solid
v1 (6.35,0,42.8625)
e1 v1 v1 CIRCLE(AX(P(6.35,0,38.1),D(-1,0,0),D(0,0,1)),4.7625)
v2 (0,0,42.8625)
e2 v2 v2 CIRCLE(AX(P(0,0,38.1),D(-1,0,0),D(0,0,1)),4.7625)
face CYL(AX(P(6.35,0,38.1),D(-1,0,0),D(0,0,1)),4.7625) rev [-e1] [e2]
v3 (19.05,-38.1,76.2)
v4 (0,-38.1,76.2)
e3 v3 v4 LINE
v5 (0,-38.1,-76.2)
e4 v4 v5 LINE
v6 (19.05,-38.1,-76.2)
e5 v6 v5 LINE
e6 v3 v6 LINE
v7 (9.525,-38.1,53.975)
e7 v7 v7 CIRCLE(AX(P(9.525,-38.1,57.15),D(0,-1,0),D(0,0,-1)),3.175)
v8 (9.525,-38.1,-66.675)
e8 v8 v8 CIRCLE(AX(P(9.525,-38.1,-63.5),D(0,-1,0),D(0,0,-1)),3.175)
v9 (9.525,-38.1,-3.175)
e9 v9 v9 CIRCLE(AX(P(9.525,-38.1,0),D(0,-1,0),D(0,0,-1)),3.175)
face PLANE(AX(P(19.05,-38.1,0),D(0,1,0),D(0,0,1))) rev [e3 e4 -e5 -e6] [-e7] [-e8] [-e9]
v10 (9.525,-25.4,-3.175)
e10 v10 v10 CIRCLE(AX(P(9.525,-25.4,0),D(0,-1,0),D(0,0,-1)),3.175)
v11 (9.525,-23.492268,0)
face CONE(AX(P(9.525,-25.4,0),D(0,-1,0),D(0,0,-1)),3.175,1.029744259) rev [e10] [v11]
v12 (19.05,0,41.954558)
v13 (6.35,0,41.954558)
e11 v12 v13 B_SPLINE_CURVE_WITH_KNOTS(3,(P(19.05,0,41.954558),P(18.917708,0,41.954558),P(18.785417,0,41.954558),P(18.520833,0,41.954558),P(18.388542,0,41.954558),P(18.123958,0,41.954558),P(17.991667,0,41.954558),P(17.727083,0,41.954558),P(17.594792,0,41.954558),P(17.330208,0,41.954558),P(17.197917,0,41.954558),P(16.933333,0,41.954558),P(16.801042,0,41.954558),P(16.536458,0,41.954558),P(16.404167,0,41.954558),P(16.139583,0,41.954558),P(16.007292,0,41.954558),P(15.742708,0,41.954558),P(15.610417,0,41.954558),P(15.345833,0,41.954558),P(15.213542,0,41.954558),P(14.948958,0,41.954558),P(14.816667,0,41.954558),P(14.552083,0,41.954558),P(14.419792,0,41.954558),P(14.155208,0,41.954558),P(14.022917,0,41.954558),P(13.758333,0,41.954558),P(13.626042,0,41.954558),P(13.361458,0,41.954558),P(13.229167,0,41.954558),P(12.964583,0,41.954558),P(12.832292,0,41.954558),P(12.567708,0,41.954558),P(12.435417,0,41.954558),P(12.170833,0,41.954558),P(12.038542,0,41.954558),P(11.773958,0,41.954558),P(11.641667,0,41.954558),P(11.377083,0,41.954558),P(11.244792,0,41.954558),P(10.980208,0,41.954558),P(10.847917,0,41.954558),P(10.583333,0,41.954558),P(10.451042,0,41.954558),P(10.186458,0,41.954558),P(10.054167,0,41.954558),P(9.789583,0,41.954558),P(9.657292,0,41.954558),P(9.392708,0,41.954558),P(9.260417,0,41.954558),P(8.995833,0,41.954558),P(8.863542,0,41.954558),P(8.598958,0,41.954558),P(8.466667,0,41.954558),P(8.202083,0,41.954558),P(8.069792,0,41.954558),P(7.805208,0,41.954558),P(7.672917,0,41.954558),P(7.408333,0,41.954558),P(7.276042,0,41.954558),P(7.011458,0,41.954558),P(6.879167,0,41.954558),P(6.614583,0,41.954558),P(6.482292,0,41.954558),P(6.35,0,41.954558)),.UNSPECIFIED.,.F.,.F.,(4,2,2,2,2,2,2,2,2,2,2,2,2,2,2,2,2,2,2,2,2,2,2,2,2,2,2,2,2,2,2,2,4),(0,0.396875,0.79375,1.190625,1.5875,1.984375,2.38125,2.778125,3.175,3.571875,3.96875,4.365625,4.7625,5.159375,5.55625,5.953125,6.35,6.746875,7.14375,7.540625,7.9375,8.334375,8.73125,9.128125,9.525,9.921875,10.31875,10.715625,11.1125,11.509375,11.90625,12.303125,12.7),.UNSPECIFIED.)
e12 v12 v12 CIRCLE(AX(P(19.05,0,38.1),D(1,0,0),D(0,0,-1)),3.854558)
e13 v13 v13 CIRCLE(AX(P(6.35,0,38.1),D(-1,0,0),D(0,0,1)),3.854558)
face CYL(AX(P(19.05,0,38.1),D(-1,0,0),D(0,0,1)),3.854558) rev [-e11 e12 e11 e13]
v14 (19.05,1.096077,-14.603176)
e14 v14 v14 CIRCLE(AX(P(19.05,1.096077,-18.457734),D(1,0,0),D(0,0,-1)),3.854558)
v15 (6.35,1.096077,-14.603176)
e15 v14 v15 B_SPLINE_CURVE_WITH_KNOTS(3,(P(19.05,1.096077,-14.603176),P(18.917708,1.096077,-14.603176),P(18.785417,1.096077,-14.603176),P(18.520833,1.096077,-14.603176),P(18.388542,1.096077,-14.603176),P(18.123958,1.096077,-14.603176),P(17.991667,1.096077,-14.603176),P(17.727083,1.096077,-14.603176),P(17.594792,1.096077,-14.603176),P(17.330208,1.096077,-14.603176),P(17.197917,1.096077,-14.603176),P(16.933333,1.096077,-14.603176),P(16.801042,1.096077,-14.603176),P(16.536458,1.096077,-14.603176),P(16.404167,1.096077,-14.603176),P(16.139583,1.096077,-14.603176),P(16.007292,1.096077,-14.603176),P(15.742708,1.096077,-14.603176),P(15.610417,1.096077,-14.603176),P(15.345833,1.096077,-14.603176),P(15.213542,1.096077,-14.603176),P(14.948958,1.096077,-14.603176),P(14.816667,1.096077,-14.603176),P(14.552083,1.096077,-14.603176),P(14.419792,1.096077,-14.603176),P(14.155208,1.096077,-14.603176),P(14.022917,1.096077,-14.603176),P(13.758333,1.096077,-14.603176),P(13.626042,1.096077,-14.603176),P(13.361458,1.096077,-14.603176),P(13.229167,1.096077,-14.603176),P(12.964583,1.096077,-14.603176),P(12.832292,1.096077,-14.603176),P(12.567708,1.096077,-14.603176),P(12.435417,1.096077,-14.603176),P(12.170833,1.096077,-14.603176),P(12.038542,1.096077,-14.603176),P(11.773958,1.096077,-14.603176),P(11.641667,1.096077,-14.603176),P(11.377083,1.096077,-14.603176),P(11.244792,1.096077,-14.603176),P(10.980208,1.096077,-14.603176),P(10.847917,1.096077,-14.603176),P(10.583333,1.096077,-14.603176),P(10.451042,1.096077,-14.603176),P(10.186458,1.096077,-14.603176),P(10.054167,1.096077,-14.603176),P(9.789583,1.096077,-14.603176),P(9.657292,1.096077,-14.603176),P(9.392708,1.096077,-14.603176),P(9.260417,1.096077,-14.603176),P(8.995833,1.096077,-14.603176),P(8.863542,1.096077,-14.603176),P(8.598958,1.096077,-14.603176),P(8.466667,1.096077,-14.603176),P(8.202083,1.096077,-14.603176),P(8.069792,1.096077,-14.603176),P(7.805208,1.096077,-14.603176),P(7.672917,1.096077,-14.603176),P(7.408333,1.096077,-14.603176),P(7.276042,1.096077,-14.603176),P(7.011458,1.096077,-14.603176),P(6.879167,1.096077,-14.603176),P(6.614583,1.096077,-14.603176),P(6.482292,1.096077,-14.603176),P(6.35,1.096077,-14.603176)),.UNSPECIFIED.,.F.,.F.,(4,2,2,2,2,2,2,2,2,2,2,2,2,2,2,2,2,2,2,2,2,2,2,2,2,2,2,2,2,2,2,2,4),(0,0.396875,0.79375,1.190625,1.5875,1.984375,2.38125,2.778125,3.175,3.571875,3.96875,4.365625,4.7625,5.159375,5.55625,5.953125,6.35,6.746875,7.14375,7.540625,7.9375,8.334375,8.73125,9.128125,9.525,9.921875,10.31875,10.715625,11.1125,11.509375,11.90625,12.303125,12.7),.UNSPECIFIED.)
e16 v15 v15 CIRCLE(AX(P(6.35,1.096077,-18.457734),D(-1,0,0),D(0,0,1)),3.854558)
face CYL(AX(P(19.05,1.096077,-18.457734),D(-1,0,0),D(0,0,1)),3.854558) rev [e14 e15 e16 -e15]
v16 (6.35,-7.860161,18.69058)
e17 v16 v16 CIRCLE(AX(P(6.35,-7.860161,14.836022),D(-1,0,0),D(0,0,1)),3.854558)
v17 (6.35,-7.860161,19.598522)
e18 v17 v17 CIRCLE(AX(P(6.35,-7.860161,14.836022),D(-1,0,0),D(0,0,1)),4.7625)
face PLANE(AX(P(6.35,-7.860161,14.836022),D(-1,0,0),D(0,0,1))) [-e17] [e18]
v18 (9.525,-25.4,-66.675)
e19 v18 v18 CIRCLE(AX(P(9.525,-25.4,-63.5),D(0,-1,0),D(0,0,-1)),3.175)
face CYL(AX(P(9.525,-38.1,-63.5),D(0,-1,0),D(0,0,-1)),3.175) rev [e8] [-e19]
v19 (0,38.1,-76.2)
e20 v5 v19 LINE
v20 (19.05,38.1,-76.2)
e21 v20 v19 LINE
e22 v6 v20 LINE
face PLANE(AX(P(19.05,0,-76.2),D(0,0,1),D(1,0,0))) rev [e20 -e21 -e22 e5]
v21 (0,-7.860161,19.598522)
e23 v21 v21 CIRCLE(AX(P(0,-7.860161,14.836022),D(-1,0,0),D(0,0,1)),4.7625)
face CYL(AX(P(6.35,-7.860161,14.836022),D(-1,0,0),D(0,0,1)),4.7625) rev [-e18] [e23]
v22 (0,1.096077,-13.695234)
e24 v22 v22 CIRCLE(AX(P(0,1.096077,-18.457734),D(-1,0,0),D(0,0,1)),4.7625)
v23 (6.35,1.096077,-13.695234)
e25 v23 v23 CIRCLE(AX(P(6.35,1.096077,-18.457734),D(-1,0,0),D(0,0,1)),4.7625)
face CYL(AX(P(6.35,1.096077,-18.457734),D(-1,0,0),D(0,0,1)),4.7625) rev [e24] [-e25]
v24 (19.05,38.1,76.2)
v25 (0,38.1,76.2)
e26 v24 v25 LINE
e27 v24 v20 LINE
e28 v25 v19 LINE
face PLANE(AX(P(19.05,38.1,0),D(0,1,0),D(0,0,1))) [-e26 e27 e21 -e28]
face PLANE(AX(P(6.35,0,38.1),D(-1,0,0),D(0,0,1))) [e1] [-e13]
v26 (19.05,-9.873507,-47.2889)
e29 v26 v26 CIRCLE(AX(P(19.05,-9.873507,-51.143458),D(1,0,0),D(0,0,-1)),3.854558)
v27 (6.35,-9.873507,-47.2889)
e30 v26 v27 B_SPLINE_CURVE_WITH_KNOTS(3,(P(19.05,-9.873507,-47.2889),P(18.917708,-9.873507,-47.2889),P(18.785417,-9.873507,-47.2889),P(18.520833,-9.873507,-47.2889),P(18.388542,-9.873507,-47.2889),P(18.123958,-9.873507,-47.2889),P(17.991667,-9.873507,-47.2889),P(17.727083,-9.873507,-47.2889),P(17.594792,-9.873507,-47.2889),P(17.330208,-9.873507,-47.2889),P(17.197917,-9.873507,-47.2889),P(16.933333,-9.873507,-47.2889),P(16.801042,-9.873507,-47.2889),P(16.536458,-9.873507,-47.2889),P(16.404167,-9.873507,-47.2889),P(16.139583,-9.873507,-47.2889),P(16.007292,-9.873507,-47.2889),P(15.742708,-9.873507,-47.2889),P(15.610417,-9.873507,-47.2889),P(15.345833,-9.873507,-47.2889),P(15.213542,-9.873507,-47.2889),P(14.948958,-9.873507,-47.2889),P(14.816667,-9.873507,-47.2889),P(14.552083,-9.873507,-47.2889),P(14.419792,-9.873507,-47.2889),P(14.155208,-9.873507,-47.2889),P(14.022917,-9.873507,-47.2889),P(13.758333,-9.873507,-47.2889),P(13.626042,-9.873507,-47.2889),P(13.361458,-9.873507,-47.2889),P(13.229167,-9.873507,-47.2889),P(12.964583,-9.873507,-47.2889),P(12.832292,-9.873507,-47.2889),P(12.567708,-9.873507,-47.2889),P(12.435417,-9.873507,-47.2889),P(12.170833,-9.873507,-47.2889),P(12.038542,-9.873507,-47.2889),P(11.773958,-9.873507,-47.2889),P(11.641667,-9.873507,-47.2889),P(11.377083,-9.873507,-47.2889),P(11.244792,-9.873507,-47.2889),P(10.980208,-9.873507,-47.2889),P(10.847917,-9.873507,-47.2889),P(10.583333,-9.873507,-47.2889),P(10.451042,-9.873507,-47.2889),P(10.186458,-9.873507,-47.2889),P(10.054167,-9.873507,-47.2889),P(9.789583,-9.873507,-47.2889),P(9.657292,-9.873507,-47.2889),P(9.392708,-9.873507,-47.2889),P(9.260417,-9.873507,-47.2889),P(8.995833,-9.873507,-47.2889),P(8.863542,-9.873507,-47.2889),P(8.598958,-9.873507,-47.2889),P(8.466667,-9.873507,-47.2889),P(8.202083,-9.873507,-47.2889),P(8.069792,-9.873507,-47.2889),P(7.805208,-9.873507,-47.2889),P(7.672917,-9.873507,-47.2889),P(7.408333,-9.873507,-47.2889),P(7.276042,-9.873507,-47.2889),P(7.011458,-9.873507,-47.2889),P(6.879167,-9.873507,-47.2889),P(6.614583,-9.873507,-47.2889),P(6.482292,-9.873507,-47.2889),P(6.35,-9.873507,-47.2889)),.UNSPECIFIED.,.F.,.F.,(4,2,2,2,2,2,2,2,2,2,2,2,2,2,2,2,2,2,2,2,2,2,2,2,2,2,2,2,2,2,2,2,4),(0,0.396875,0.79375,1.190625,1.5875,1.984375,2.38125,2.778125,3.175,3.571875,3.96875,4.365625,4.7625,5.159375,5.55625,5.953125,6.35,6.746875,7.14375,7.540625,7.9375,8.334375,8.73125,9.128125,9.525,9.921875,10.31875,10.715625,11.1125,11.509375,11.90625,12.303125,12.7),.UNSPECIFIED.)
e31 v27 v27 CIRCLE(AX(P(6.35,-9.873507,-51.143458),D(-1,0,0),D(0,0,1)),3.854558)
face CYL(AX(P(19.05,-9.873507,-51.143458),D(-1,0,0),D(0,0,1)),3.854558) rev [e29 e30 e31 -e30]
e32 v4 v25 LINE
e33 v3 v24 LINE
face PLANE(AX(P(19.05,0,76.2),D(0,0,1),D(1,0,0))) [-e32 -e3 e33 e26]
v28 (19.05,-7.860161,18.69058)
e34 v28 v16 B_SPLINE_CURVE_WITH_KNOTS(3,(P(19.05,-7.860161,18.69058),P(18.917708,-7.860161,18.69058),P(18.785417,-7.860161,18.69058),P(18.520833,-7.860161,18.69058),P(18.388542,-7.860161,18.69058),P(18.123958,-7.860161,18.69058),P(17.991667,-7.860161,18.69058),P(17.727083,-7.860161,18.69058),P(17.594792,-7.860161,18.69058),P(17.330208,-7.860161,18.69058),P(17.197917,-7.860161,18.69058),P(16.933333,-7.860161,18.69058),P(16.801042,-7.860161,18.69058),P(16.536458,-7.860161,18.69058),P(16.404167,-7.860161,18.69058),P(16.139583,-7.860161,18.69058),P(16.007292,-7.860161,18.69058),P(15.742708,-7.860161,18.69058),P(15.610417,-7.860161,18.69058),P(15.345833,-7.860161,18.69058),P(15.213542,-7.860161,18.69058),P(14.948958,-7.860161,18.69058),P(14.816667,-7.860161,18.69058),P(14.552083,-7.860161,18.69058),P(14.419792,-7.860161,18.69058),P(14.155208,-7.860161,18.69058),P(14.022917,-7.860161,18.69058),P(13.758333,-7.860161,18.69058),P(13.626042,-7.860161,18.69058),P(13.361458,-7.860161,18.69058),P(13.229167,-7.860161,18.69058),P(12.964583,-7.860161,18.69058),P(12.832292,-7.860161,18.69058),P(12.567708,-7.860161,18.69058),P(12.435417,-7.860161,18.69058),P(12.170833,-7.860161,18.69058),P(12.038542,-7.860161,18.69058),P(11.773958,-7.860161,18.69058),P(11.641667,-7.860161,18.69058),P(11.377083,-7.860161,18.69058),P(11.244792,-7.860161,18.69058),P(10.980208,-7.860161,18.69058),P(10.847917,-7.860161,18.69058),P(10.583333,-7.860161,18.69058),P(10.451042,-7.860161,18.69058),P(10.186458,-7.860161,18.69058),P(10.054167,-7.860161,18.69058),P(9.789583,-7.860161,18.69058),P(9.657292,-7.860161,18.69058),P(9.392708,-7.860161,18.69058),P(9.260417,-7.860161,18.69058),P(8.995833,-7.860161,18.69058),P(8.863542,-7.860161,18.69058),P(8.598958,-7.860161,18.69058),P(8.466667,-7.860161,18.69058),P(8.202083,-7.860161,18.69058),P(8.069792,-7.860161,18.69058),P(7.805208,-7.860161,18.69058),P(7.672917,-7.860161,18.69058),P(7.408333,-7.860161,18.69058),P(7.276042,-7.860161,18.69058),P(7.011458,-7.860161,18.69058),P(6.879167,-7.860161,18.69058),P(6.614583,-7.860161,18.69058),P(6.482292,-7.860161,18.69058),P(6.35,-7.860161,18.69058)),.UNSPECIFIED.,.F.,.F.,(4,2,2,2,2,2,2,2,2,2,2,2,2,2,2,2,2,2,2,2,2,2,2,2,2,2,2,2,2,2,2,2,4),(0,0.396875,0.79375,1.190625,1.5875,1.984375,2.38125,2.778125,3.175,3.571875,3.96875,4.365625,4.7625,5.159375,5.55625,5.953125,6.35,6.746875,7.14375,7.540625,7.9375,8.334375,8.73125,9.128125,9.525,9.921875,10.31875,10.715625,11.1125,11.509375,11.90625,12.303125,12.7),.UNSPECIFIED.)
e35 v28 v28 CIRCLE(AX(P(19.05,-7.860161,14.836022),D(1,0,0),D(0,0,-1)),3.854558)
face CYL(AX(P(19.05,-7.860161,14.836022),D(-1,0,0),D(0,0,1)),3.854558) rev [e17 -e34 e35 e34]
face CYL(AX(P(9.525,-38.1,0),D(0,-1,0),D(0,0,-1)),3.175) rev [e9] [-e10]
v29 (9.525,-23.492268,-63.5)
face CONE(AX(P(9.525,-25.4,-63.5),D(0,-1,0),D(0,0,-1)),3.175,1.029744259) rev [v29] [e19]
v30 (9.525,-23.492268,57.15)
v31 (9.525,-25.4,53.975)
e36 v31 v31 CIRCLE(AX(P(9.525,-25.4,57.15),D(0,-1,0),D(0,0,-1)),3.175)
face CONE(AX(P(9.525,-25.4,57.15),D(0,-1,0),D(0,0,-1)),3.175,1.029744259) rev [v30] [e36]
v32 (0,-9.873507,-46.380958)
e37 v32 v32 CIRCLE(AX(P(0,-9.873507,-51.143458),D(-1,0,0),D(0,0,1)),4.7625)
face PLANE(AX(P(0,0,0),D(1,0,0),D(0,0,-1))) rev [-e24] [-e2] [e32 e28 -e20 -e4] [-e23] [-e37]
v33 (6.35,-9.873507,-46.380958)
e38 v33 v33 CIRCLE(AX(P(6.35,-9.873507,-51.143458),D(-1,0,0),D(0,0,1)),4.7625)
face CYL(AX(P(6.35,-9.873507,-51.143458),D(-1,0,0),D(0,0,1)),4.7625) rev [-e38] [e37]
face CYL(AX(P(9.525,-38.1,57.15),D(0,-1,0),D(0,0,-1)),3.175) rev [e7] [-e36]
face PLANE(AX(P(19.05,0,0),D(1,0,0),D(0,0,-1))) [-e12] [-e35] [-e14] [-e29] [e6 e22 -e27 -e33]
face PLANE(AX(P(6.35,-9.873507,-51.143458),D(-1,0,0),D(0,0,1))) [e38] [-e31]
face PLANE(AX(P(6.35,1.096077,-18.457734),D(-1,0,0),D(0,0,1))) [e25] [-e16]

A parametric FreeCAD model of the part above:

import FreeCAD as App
import Part
import Sketcher

V = App.Vector
Q = App.Units.Quantity


def add_polygon(sketch, points):
    """Adds a closed chain of lines whose ends are joined by coincident constraints."""
    first, n = sketch.GeometryCount, len(points)
    for a, b in zip(points, points[1:] + points[:1]):
        sketch.addGeometry(Part.LineSegment(App.Vector(*a, 0), App.Vector(*b, 0)), False)
    for i in range(n):
        sketch.addConstraint(Sketcher.Constraint("Coincident", first + i, 2, first + (i + 1) % n, 1))

doc = App.newDocument("Part")
params = doc.addObject("Spreadsheet::Sheet", "Params")
for row, (alias, value) in enumerate([
    ("sketch1_width", "3 in"),
    ("sketch1_height", "6 in"),
    ("pad1_length", "0.75 in"),
    ("sketch2_diameter", "0.25 in"),
    ("hole_diameter", "0.25 in"),
    ("hole_depth", "0.5 in"),
    ("sketch3_diameter", "0.375 in"),
    ("pocket1_length", "0.25 in"),
], start=1):
    params.set(f"A{row}", alias)
    params.set(f"B{row}", "=" + value)
    params.setAlias(f"B{row}", alias)

body = doc.addObject("PartDesign::Body", "Body")

# Sketch on YZ plane
sketch1 = body.newObject("Sketcher::SketchObject", "Sketch")
sketch1.AttachmentSupport = (doc.getObject("YZ_Plane"), [""])
sketch1.MapMode = "FlatFace"
add_polygon(sketch1, [(38.1, 76.2), (-38.1, 76.2), (-38.1, -76.2), (38.1, -76.2)])  # lines 0-3
sketch1.addGeometry(Part.Circle(V(-7.9, 14.8, 0), V(0, 0, 1), 3.9), False)  # 4
sketch1.addGeometry(Part.Circle(V(-9.9, -51.1, 0), V(0, 0, 1), 3.9), False)  # 5
sketch1.addGeometry(Part.Circle(V(0, 38.1, 0), V(0, 0, 1), 3.9), False)  # 6
sketch1.addGeometry(Part.Circle(V(1.1, -18.5, 0), V(0, 0, 1), 3.9), False)  # 7
sketch1.addConstraint([
    Sketcher.Constraint("Horizontal", 0),
    Sketcher.Constraint("Vertical", 1),
    Sketcher.Constraint("Horizontal", 2),
    Sketcher.Constraint("Vertical", 3),
    Sketcher.Constraint("Equal", 4, 5),
    Sketcher.Constraint("Equal", 5, 6),
    Sketcher.Constraint("Equal", 6, 7),
    Sketcher.Constraint("Symmetric", 0, 2, 2, 2, -1, 1),
    Sketcher.Constraint("PointOnObject", 6, 3, -2),
    Sketcher.Constraint("DistanceX", 0, 2, 0, 1, Q("3 in")),
    Sketcher.Constraint("DistanceY", 1, 2, 1, 1, Q("6 in")),
    Sketcher.Constraint("DistanceY", -1, 1, 6, 3, Q("1.5 in")),
    Sketcher.Constraint("Diameter", 4, 7.709116),
    Sketcher.Constraint("DistanceX", 4, 3, -1, 1, 7.860161),
    Sketcher.Constraint("DistanceY", 5, 3, 4, 3, 65.97948),
    Sketcher.Constraint("DistanceX", 4, 3, 7, 3, 8.956238),
    Sketcher.Constraint("DistanceY", -1, 1, 4, 3, 14.836022),
    Sketcher.Constraint("DistanceX", 5, 3, -1, 1, 9.873507),
    Sketcher.Constraint("DistanceY", 7, 3, -1, 1, 18.457734),
])
sketch1.setExpression("Constraints[13]", "Params.sketch1_width")
sketch1.setExpression("Constraints[14]", "Params.sketch1_height")
pad1 = body.newObject("PartDesign::Pad", "Pad")
pad1.Profile = sketch1
pad1.setExpression("Length", "Params.pad1_length")

# Sketch on XZ plane
sketch2 = body.newObject("Sketcher::SketchObject", "Sketch001")
sketch2.AttachmentSupport = (doc.getObject("XZ_Plane"), [""])
sketch2.MapMode = "FlatFace"
sketch2.AttachmentOffset = App.Placement(V(0, 0, 1.5 * 25.4), App.Rotation())
sketch2.addGeometry([
    Part.Circle(V(9.5, 57.1, 0), V(0, 0, 1), 3.2),
    Part.Circle(V(9.5, -63.5, 0), V(0, 0, 1), 3.2),
    Part.Circle(V(9.5, 0, 0), V(0, 0, 1), 3.2),
], False)
sketch2.addConstraint([
    Sketcher.Constraint("Equal", 0, 1),
    Sketcher.Constraint("Equal", 1, 2),
    Sketcher.Constraint("PointOnObject", 2, 3, -1),
    Sketcher.Constraint("Vertical", 0, 3, 1, 3),
    Sketcher.Constraint("Vertical", 1, 3, 2, 3),
    Sketcher.Constraint("Diameter", 0, Q("0.25 in")),
    Sketcher.Constraint("DistanceY", 1, 3, -1, 1, Q("2.5 in")),
    Sketcher.Constraint("DistanceY", -1, 1, 0, 3, Q("2.25 in")),
    Sketcher.Constraint("DistanceX", -1, 1, 0, 3, Q("0.375 in")),
])
sketch2.setExpression("Constraints[5]", "Params.sketch2_diameter")
doc.recompute()
hole = body.newObject("PartDesign::Hole", "Hole")
hole.Profile = sketch2
hole.ThreadType = "None"
hole.setExpression("Diameter", "Params.hole_diameter")
hole.DepthType = "Dimension"
hole.setExpression("Depth", "Params.hole_depth")
hole.DrillPoint = "Angled"
hole.DrillPointAngle = 118

# Sketch on YZ plane
sketch3 = body.newObject("Sketcher::SketchObject", "Sketch002")
sketch3.AttachmentSupport = (doc.getObject("YZ_Plane"), [""])
sketch3.MapMode = "FlatFace"
sketch3.addGeometry([
    Part.Circle(V(0, 38.1, 0), V(0, 0, 1), 4.8),
    Part.Circle(V(-7.9, 14.8, 0), V(0, 0, 1), 4.8),
    Part.Circle(V(1.1, -18.5, 0), V(0, 0, 1), 4.8),
    Part.Circle(V(-9.9, -51.1, 0), V(0, 0, 1), 4.8),
], False)
sketch3.addConstraint([
    Sketcher.Constraint("Equal", 0, 1),
    Sketcher.Constraint("Equal", 1, 2),
    Sketcher.Constraint("Equal", 2, 3),
    Sketcher.Constraint("PointOnObject", 0, 3, -2),
    Sketcher.Constraint("Diameter", 0, Q("0.375 in")),
    Sketcher.Constraint("DistanceY", -1, 1, 0, 3, Q("1.5 in")),
    Sketcher.Constraint("DistanceX", 1, 3, -1, 1, 7.860161),
    Sketcher.Constraint("DistanceX", 1, 3, 2, 3, 8.956238),
    Sketcher.Constraint("DistanceY", 3, 3, 1, 3, 65.97948),
    Sketcher.Constraint("DistanceY", -1, 1, 1, 3, 14.836022),
    Sketcher.Constraint("DistanceY", 2, 3, -1, 1, 18.457734),
    Sketcher.Constraint("DistanceX", 3, 3, -1, 1, 9.873507),
])
sketch3.setExpression("Constraints[4]", "Params.sketch3_diameter")
pocket1 = body.newObject("PartDesign::Pocket", "Pocket")
pocket1.Profile = sketch3
pocket1.setExpression("Length", "Params.pocket1_length")
pocket1.Reversed = True

doc.recompute()
